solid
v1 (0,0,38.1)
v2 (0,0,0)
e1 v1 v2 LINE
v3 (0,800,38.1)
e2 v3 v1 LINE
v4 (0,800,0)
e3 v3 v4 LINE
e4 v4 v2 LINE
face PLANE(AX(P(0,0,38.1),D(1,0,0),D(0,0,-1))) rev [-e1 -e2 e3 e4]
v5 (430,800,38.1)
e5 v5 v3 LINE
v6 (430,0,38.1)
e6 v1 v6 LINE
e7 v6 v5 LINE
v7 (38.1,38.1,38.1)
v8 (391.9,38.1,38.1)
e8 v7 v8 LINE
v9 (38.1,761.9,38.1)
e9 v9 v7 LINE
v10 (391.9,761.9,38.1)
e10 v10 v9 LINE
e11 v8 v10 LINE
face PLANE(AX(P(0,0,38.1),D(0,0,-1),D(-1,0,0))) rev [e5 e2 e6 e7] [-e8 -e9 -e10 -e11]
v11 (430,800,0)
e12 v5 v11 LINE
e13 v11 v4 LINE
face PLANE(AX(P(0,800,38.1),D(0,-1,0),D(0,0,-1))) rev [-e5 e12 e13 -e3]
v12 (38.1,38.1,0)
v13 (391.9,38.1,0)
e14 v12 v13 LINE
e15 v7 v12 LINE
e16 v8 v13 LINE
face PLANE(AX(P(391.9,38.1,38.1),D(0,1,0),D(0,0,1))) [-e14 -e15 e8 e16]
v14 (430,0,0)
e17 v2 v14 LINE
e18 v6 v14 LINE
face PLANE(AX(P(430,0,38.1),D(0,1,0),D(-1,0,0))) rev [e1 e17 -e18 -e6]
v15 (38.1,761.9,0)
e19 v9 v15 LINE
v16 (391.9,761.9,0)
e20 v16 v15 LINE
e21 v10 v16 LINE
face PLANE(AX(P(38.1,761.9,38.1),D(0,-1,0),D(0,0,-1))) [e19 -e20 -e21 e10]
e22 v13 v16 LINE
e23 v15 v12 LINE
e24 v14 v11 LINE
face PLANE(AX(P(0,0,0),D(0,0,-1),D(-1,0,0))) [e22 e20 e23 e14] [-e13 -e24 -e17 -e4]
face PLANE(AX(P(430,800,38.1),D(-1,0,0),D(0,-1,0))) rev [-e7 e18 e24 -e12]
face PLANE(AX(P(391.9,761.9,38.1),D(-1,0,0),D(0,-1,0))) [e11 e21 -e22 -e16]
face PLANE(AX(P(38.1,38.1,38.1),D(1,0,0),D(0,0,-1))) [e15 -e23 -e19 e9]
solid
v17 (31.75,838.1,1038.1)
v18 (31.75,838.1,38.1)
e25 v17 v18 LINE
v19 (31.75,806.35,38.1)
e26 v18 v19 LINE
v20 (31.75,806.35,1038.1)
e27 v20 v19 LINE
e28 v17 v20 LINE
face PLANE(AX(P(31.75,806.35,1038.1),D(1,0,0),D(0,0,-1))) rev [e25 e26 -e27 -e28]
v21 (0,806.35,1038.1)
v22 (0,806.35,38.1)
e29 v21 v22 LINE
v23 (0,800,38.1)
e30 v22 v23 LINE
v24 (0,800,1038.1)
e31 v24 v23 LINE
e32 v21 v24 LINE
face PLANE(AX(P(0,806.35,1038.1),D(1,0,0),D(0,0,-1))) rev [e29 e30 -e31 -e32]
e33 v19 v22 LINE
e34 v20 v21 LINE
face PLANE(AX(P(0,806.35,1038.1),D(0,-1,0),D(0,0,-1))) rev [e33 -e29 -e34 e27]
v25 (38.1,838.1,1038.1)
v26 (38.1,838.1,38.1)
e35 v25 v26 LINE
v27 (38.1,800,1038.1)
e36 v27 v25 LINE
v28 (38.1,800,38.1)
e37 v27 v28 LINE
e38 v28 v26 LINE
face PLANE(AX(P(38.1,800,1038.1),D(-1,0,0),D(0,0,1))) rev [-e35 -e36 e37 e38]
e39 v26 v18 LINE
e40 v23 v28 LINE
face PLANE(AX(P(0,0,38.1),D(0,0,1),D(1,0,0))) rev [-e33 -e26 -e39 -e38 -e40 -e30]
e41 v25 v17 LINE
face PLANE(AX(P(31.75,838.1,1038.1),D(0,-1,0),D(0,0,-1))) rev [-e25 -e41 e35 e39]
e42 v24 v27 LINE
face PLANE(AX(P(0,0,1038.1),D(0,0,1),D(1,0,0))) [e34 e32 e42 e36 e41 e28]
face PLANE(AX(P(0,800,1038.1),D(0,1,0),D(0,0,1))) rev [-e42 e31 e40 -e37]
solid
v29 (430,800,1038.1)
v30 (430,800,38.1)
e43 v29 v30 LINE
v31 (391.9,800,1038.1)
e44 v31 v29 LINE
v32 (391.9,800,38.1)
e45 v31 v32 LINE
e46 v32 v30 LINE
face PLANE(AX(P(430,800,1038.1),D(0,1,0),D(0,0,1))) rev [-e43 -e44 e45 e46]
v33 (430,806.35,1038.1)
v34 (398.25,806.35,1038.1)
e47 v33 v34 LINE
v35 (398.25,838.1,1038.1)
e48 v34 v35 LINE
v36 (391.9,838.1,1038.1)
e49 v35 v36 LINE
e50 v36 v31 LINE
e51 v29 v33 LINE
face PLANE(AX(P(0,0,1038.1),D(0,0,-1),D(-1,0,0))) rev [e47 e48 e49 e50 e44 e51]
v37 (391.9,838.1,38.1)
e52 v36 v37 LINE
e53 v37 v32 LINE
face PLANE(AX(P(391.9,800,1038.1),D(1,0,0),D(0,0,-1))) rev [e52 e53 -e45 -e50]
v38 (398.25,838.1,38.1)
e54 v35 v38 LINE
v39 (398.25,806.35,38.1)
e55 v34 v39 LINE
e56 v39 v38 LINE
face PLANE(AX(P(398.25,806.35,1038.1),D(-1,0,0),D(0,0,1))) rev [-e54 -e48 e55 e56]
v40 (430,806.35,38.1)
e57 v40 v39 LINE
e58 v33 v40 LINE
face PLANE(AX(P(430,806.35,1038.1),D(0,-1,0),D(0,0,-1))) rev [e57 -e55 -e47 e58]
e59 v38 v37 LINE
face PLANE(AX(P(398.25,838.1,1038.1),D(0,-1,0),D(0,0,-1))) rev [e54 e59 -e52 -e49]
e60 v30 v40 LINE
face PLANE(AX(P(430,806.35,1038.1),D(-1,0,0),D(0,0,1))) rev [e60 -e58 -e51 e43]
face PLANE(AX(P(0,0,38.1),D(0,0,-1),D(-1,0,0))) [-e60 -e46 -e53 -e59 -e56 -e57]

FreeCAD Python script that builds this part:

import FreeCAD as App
import Part
import Sketcher

V = App.Vector


def add_polygon(sketch, points):
    """Adds a closed chain of lines whose ends are joined by coincident constraints."""
    first, n = sketch.GeometryCount, len(points)
    for a, b in zip(points, points[1:] + points[:1]):
        sketch.addGeometry(Part.LineSegment(App.Vector(*a, 0), App.Vector(*b, 0)), False)
    for i in range(n):
        sketch.addConstraint(Sketcher.Constraint("Coincident", first + i, 2, first + (i + 1) % n, 1))

doc = App.newDocument("Part")
body = doc.addObject("PartDesign::Body", "Body")

# Sketch on XY plane
sketch1 = doc.addObject("Sketcher::SketchObject", "Sketch")
body.addObject(sketch1)
sketch1.AttachmentSupport = (doc.XY_Plane, [""])
sketch1.MapMode = "FlatFace"
add_polygon(sketch1, [(0, 800), (0, 0), (430, 0), (430, 800)])  # lines 0-3
add_polygon(sketch1, [(391.9, 38.1), (38.1, 38.1), (38.1, 761.9), (391.9, 761.9)])  # lines 4-7
sketch1.addConstraint([
    Sketcher.Constraint("Vertical", 0),
    Sketcher.Constraint("Horizontal", 1),
    Sketcher.Constraint("Vertical", 2),
    Sketcher.Constraint("Horizontal", 3),
    Sketcher.Constraint("Horizontal", 4),
    Sketcher.Constraint("Vertical", 5),
    Sketcher.Constraint("Horizontal", 6),
    Sketcher.Constraint("Vertical", 7),
    Sketcher.Constraint("Coincident", 0, 2, -1, 1),
    Sketcher.Constraint("DistanceX", 1, 1, 1, 2, 430.0),
    Sketcher.Constraint("DistanceY", 0, 2, 0, 1, 800.0),
    Sketcher.Constraint("DistanceX", 4, 2, 4, 1, 353.8),
    Sketcher.Constraint("DistanceY", 5, 1, 5, 2, 723.8),
    Sketcher.Constraint("DistanceX", -1, 1, 4, 2, 38.1),
    Sketcher.Constraint("DistanceY", -1, 1, 4, 2, 38.1),
])
pad1 = doc.addObject("PartDesign::Pad", "Pad")
body.addObject(pad1)
pad1.Profile = sketch1
pad1.Length = 38.1
body2 = doc.addObject("PartDesign::Body", "Body001")

# Sketch on XY plane
sketch2 = doc.addObject("Sketcher::SketchObject", "Sketch001")
body2.addObject(sketch2)
sketch2.AttachmentSupport = (doc.getObject("XY_Plane001"), [""])
sketch2.MapMode = "FlatFace"
sketch2.AttachmentOffset = App.Placement(V(0, 0, 38.1), App.Rotation())
add_polygon(sketch2, [(0, 800), (38.1, 800), (38.1, 838.1), (31.75, 838.1), (31.75, 806.35), (0, 806.35)])  # lines 0-5
sketch2.addConstraint([
    Sketcher.Constraint("Horizontal", 0),
    Sketcher.Constraint("Vertical", 1),
    Sketcher.Constraint("Horizontal", 2),
    Sketcher.Constraint("Vertical", 3),
    Sketcher.Constraint("Horizontal", 4),
    Sketcher.Constraint("Vertical", 5),
    Sketcher.Constraint("PointOnObject", 4, 2, -2),
    Sketcher.Constraint("Equal", 0, 1),
    Sketcher.Constraint("Equal", 4, 3),
    Sketcher.Constraint("DistanceX", 0, 1, 0, 2, 38.1),
    Sketcher.Constraint("DistanceY", -1, 1, 0, 2, 800.0),
    Sketcher.Constraint("DistanceX", 2, 2, 2, 1, 6.35),
])
pad2 = doc.addObject("PartDesign::Pad", "Pad001")
body2.addObject(pad2)
pad2.Profile = sketch2
pad2.Length = 1000
body3 = doc.addObject("PartDesign::Body", "Body002")

# Sketch on XY plane
sketch3 = doc.addObject("Sketcher::SketchObject", "Sketch002")
body3.addObject(sketch3)
sketch3.AttachmentSupport = (doc.getObject("XY_Plane002"), [""])
sketch3.MapMode = "FlatFace"
sketch3.AttachmentOffset = App.Placement(V(0, 0, 38.1), App.Rotation())
add_polygon(sketch3, [(398.25, 838.1), (391.9, 838.1), (391.9, 800), (430, 800), (430, 806.35), (398.25, 806.35)])  # lines 0-5
sketch3.addConstraint([
    Sketcher.Constraint("Horizontal", 0),
    Sketcher.Constraint("Vertical", 1),
    Sketcher.Constraint("Horizontal", 2),
    Sketcher.Constraint("Vertical", 3),
    Sketcher.Constraint("Horizontal", 4),
    Sketcher.Constraint("Vertical", 5),
    Sketcher.Constraint("Equal", 2, 1),
    Sketcher.Constraint("Equal", 0, 3),
    Sketcher.Constraint("DistanceX", 2, 1, 2, 2, 38.1),
    Sketcher.Constraint("DistanceY", -1, 1, 1, 2, 800.0),
    Sketcher.Constraint("DistanceX", -1, 1, 2, 2, 430.0),
    Sketcher.Constraint("DistanceX", 0, 2, 0, 1, 6.35),
])
pad3 = doc.addObject("PartDesign::Pad", "Pad002")
body3.addObject(pad3)
pad3.Profile = sketch3
pad3.Length = 1000

doc.recompute()
